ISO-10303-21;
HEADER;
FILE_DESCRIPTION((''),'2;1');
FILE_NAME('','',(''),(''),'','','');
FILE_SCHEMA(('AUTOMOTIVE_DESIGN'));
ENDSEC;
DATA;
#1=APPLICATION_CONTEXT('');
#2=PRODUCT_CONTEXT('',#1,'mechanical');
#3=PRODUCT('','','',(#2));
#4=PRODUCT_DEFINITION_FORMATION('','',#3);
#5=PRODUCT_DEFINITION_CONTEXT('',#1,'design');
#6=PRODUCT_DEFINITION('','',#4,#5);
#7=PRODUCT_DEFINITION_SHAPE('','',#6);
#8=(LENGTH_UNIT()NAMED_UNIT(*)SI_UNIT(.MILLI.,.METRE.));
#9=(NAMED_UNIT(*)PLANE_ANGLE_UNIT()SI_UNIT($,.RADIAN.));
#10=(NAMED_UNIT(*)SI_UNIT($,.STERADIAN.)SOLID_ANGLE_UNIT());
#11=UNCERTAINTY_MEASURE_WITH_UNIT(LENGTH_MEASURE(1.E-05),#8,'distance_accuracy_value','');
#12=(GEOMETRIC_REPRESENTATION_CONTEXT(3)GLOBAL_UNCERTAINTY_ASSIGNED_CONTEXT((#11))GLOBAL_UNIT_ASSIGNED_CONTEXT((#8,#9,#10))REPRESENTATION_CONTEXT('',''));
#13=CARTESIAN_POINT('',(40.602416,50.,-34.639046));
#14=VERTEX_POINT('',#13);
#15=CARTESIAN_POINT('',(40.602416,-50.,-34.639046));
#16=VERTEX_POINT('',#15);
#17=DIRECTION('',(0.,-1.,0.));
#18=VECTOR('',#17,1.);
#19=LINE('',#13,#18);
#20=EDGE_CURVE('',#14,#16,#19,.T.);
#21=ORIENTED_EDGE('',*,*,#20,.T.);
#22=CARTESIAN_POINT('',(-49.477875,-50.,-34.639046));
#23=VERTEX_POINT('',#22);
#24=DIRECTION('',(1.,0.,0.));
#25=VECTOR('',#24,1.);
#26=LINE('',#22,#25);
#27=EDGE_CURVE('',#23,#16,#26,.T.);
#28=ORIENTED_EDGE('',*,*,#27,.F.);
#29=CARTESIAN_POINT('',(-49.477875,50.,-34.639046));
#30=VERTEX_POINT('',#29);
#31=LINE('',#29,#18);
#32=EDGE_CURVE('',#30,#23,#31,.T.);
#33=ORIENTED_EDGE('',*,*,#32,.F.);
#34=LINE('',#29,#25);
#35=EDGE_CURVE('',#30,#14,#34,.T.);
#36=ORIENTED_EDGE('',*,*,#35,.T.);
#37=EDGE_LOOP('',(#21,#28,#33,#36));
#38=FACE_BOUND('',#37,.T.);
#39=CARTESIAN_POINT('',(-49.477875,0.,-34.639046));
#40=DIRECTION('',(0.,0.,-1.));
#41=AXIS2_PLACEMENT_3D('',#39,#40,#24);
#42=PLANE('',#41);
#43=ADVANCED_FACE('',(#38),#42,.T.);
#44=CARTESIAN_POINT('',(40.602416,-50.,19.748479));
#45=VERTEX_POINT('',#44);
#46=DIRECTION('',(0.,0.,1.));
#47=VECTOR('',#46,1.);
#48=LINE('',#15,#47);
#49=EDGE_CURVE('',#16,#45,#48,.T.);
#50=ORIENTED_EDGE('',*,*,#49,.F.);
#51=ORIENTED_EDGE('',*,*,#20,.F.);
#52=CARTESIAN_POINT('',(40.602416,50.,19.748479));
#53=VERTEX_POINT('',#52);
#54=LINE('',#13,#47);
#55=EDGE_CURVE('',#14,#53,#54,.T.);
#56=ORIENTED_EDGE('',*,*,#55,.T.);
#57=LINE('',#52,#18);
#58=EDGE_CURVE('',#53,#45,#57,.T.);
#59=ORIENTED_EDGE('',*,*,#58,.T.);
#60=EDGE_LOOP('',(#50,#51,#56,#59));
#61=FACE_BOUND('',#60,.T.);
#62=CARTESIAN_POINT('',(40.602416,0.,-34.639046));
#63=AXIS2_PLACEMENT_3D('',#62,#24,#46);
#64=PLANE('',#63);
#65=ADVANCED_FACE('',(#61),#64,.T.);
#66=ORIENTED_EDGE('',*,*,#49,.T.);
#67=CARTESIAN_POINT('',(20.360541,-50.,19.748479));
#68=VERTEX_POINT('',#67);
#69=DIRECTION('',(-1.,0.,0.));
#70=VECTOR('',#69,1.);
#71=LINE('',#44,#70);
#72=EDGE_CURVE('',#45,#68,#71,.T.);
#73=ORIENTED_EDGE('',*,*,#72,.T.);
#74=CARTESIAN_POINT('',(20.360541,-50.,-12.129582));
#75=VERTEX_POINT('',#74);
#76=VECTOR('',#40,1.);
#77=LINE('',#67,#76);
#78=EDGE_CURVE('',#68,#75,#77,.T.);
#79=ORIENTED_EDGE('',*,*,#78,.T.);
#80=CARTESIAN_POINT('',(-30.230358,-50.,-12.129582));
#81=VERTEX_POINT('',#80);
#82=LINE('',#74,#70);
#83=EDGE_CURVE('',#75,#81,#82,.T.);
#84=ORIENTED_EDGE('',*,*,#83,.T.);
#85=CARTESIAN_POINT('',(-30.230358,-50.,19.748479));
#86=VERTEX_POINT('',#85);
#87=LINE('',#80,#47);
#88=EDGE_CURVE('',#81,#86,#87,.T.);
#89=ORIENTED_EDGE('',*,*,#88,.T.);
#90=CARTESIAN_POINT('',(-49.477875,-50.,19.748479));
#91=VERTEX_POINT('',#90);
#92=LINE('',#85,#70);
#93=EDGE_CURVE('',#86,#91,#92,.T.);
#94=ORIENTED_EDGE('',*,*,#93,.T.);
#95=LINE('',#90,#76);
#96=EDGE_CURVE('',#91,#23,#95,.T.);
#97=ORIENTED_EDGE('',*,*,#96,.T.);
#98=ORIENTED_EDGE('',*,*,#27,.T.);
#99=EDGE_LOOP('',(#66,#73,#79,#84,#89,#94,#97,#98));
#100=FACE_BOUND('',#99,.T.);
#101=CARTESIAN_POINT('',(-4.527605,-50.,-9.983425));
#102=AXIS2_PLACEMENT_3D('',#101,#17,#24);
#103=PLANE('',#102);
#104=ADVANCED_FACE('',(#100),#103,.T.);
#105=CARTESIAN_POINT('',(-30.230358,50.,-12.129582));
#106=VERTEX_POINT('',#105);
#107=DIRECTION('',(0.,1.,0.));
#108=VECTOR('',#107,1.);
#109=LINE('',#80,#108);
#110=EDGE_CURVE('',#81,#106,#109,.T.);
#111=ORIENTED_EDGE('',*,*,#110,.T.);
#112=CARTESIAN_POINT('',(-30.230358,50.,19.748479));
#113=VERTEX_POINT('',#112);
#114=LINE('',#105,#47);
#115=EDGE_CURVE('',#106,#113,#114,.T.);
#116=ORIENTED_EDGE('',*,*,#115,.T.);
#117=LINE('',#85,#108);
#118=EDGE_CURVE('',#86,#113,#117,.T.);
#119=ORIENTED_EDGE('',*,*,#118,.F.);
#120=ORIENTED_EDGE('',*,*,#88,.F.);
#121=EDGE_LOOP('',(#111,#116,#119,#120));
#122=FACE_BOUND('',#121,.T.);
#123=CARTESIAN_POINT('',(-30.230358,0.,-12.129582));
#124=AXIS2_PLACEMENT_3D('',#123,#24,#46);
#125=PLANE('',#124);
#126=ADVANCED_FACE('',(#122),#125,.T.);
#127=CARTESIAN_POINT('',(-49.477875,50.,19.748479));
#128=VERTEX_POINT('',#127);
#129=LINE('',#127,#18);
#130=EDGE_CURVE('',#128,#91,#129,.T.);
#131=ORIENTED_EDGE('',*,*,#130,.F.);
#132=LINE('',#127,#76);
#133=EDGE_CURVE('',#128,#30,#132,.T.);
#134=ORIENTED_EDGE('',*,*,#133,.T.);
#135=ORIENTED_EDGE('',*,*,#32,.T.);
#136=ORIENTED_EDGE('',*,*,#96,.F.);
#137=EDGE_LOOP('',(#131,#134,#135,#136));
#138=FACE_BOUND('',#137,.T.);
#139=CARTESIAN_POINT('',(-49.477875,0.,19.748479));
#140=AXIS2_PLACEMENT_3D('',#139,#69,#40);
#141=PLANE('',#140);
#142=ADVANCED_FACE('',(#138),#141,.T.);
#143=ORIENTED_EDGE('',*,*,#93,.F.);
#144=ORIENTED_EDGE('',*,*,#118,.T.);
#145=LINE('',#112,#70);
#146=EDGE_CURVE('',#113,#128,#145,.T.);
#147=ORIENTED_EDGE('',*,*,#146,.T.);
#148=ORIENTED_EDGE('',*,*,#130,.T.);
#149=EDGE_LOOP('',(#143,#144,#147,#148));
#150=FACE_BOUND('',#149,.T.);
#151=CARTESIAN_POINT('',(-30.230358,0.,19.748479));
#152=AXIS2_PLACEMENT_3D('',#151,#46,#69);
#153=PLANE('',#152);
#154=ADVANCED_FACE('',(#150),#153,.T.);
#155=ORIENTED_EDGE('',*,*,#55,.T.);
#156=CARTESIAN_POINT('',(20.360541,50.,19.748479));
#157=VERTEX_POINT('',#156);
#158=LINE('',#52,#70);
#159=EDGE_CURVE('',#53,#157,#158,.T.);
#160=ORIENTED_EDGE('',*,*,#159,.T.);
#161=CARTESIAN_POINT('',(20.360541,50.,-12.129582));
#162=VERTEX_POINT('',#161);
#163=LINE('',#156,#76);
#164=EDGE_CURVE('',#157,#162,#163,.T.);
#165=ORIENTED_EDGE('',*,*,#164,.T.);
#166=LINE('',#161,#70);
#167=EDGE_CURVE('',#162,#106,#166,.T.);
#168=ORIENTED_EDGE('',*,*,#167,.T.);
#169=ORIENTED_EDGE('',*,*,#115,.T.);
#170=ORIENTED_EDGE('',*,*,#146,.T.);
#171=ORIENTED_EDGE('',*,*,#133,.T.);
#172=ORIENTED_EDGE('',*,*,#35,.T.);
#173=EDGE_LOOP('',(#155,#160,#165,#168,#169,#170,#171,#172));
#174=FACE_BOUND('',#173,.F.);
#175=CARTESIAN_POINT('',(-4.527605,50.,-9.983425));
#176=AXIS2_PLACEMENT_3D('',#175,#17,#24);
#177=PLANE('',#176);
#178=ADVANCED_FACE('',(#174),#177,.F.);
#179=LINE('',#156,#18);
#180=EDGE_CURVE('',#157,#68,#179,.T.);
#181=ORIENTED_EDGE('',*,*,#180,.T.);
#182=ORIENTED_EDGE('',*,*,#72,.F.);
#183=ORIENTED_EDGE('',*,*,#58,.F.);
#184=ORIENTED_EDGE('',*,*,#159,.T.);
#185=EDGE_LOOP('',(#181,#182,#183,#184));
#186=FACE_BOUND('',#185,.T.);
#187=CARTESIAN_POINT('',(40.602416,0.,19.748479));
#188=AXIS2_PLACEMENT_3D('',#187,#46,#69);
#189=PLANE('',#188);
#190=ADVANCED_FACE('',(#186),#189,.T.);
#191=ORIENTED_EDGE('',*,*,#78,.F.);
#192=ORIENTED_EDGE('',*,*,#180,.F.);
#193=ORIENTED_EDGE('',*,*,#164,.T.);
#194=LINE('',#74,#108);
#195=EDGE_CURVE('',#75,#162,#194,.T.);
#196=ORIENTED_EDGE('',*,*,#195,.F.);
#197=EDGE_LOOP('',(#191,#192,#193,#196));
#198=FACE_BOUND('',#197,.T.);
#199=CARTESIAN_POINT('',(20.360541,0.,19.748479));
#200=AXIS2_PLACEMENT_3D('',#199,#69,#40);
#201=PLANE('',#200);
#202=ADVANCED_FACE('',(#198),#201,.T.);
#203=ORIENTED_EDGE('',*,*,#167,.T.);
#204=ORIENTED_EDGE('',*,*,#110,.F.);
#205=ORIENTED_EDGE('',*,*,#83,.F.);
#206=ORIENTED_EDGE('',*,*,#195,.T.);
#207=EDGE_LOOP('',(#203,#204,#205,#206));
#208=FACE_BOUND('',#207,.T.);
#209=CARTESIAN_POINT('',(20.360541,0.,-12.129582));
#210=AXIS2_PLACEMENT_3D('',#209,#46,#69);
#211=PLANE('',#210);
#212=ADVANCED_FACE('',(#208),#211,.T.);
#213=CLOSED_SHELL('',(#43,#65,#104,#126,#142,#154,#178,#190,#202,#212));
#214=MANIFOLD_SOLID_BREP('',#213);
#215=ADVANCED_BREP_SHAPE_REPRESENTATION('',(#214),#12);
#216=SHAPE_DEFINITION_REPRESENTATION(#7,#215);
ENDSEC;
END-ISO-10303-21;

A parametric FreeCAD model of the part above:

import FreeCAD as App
import Part
import Sketcher

V = App.Vector
Q = App.Units.Quantity


def add_polygon(sketch, points):
    """Adds a closed chain of lines whose ends are joined by coincident constraints."""
    first, n = sketch.GeometryCount, len(points)
    for a, b in zip(points, points[1:] + points[:1]):
        sketch.addGeometry(Part.LineSegment(App.Vector(*a, 0), App.Vector(*b, 0)), False)
    for i in range(n):
        sketch.addConstraint(Sketcher.Constraint("Coincident", first + i, 2, first + (i + 1) % n, 1))

doc = App.newDocument("Part")
body = doc.addObject("PartDesign::Body", "Body")

sketch1 = body.newObject("Sketcher::SketchObject", "Sketch")
sketch1.AttachmentSupport = (doc.getObject("XZ_Plane"), [""])
sketch1.MapMode = "FlatFace"
add_polygon(sketch1, [(-30, 20), (-49, 20), (-49, -35), (41, -35), (41, 20), (20, 20), (20, -12), (-30, -12)])
sketch1.addConstraint(Sketcher.Constraint("Horizontal", 0))
sketch1.addConstraint(Sketcher.Constraint("Vertical", 1))
sketch1.addConstraint(Sketcher.Constraint("Horizontal", 2))
sketch1.addConstraint(Sketcher.Constraint("Vertical", 3))
sketch1.addConstraint(Sketcher.Constraint("Horizontal", 4))
sketch1.addConstraint(Sketcher.Constraint("Vertical", 5))
sketch1.addConstraint(Sketcher.Constraint("Horizontal", 6))
sketch1.addConstraint(Sketcher.Constraint("Vertical", 7))
sketch1.addConstraint(Sketcher.Constraint("Horizontal", 0, 2, 3, 2))
sketch1.addConstraint(Sketcher.Constraint("DistanceX", 6, 2, 6, 1, Q("50.590899 mm")))
sketch1.addConstraint(Sketcher.Constraint("DistanceX", 2, 1, 2, 2, Q("90.080291 mm")))
sketch1.addConstraint(Sketcher.Constraint("DistanceY", 5, 2, 5, 1, Q("31.878061 mm")))
sketch1.addConstraint(Sketcher.Constraint("DistanceX", 0, 2, 0, 1, Q("19.247517 mm")))
sketch1.addConstraint(Sketcher.Constraint("DistanceY", 1, 2, 1, 1, Q("54.387525 mm")))
sketch1.addConstraint(Sketcher.Constraint("DistanceY", -1, 1, 0, 2, Q("19.748479 mm")))
sketch1.addConstraint(Sketcher.Constraint("DistanceX", -1, 1, 4, 2, Q("20.360541 mm")))
pad1 = body.newObject("PartDesign::Pad", "Pad")
pad1.Profile = sketch1
pad1.Type = "TwoLengths"
pad1.Length = 50
pad1.Length2 = 50

doc.recompute()
